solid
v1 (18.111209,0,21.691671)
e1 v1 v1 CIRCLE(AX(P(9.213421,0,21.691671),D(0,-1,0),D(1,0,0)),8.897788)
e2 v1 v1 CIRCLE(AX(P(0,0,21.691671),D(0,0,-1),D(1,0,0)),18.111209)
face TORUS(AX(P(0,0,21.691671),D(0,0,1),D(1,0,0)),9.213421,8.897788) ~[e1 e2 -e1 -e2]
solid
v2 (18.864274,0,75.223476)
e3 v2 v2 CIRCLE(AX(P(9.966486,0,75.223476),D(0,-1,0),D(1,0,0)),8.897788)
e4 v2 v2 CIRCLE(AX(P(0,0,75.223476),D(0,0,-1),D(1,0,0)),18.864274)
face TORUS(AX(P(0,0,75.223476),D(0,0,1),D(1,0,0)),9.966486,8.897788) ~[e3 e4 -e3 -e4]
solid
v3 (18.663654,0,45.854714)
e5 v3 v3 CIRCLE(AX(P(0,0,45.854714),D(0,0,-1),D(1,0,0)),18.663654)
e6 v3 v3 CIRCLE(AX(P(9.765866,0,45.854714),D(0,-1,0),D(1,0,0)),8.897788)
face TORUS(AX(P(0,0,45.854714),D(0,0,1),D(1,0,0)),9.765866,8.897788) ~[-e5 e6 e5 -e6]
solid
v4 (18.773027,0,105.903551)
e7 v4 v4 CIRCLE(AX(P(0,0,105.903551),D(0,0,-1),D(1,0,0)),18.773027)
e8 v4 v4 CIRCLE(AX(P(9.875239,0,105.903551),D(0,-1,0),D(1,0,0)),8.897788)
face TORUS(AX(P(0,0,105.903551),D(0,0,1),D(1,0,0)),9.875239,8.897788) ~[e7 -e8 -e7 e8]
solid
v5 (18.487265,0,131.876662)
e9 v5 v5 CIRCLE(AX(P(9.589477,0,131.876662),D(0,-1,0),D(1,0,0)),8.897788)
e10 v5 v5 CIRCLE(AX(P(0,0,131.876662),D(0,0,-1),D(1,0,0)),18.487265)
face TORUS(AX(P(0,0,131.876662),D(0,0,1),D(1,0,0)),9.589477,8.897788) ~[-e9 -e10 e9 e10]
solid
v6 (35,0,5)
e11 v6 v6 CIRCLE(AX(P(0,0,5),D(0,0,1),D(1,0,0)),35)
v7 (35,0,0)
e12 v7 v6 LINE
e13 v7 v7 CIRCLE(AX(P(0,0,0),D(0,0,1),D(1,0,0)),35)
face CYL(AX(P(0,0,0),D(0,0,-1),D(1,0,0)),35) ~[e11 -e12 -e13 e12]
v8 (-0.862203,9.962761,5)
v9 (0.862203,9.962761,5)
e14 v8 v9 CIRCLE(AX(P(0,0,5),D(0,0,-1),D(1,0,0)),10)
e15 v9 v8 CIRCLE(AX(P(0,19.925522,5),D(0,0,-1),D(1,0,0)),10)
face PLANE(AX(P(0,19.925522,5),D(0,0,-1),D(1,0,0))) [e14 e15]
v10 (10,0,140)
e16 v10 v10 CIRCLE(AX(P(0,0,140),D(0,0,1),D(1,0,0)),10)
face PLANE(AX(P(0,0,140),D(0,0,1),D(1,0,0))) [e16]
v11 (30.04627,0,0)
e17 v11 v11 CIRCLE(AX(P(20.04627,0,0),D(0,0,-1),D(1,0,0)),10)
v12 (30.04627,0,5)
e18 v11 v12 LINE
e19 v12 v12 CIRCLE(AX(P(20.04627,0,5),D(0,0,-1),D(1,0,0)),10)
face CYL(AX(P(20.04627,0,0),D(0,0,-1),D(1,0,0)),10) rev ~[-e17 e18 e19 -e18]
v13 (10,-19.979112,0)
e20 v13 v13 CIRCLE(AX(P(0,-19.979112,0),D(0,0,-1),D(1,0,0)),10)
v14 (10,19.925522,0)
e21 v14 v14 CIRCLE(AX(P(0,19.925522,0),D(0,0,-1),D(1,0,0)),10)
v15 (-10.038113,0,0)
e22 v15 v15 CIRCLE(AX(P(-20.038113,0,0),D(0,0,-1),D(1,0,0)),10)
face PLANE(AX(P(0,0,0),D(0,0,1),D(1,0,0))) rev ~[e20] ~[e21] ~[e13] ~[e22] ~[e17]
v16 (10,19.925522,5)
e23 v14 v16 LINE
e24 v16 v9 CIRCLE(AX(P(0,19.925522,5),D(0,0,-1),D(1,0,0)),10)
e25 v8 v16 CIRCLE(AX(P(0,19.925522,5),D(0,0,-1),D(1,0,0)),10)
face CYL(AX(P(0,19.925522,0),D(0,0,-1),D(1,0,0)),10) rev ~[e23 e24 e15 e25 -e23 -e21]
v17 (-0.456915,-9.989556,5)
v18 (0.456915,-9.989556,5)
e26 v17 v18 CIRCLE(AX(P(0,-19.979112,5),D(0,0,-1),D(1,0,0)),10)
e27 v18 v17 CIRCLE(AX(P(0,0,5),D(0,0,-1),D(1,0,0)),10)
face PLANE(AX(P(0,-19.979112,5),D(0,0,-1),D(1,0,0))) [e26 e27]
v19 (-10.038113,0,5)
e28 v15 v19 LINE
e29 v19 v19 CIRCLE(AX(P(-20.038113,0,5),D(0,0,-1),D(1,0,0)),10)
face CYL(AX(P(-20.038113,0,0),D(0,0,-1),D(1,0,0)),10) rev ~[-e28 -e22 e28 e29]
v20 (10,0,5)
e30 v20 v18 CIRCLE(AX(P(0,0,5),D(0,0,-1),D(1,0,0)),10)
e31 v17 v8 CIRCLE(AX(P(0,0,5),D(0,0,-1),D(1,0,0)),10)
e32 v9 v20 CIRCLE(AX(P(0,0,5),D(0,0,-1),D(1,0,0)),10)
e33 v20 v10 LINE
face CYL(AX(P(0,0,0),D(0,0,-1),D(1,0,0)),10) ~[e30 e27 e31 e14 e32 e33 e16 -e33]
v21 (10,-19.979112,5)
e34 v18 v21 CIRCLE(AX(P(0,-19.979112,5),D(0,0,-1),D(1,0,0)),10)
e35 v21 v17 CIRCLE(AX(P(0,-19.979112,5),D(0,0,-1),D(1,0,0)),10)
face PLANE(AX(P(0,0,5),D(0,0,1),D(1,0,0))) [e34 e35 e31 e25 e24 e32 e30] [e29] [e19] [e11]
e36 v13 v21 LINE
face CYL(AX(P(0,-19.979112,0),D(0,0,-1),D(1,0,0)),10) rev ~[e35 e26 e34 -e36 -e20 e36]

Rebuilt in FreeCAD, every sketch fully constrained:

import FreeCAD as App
import Part
import Sketcher
from FreeCAD import Vector

doc = App.newDocument("Part")
body = doc.addObject("PartDesign::Body", "Body")

# Sketch on XY plane
sketch1 = body.newObject("Sketcher::SketchObject", "Sketch")
sketch1.AttachmentSupport = (doc.getObject("XY_Plane"), [""])
sketch1.MapMode = "FlatFace"
sketch1.addGeometry(Part.Circle(Vector(0, 0, 0), Vector(0, 0, 1), 10), False)
sketch1.addConstraint([
    Sketcher.Constraint("Coincident", 0, 3, -1, 1),
    Sketcher.Constraint("Diameter", 0, 20.0),
])
pad1 = body.newObject("PartDesign::Pad", "Pad")
pad1.Profile = sketch1
pad1.Length = 140

# Sketch on XY plane
sketch2 = body.newObject("Sketcher::SketchObject", "Sketch001")
sketch2.AttachmentSupport = (doc.getObject("XY_Plane"), [""])
sketch2.MapMode = "FlatFace"
sketch2.addGeometry(Part.Circle(Vector(0, 0, 0), Vector(0, 0, 1), 35), False)
sketch2.addConstraint([
    Sketcher.Constraint("Coincident", 0, 3, -1, 1),
    Sketcher.Constraint("Diameter", 0, 70.0),
])
pad2 = body.newObject("PartDesign::Pad", "Pad001")
pad2.Profile = sketch2
pad2.Length = 5

# Sketch on XY plane
sketch3 = body.newObject("Sketcher::SketchObject", "Sketch002")
sketch3.AttachmentSupport = (doc.getObject("XY_Plane"), [""])
sketch3.MapMode = "FlatFace"
sketch3.addGeometry([
    Part.Circle(Vector(0, -20, 0), Vector(0, 0, 1), 10),
    Part.Circle(Vector(20, 0, 0), Vector(0, 0, 1), 10),
    Part.Circle(Vector(0, 20, 0), Vector(0, 0, 1), 10),
    Part.Circle(Vector(-20, 0, 0), Vector(0, 0, 1), 10),
], False)
sketch3.addConstraint([
    Sketcher.Constraint("Equal", 0, 1),
    Sketcher.Constraint("Equal", 1, 2),
    Sketcher.Constraint("Equal", 2, 3),
    Sketcher.Constraint("PointOnObject", 0, 3, -2),
    Sketcher.Constraint("PointOnObject", 1, 3, -1),
    Sketcher.Constraint("PointOnObject", 2, 3, -2),
    Sketcher.Constraint("PointOnObject", 3, 3, -1),
    Sketcher.Constraint("Diameter", 0, 20.0),
    Sketcher.Constraint("DistanceX", -1, 1, 1, 3, 20.04627),
    Sketcher.Constraint("DistanceY", 0, 3, -1, 1, 19.979112),
    Sketcher.Constraint("DistanceY", -1, 1, 2, 3, 19.925522),
    Sketcher.Constraint("DistanceX", 3, 3, -1, 1, 20.038113),
])
pocket1 = body.newObject("PartDesign::Pocket", "Pocket")
pocket1.Profile = sketch3
pocket1.Length = 5
pocket1.Reversed = True
body2 = doc.addObject("PartDesign::Body", "Body001")
body2.AllowCompound = True

# Sketch on XZ plane
sketch4 = body2.newObject("Sketcher::SketchObject", "Sketch003")
sketch4.AttachmentSupport = (doc.getObject("XZ_Plane001"), [""])
sketch4.MapMode = "FlatFace"
sketch4.addGeometry([
    Part.Circle(Vector(10, 106, 0), Vector(0, 0, 1), 9),  # 0
    Part.Circle(Vector(10, 75, 0), Vector(0, 0, 1), 9),  # 1
    Part.Circle(Vector(10, 46, 0), Vector(0, 0, 1), 9),  # 2
    Part.Circle(Vector(9, 22, 0), Vector(0, 0, 1), 9),  # 3
    Part.Circle(Vector(10, 132, 0), Vector(0, 0, 1), 9),  # 4
], False)
sketch4.addConstraint([
    Sketcher.Constraint("Equal", 0, 1),
    Sketcher.Constraint("Equal", 1, 2),
    Sketcher.Constraint("Equal", 2, 3),
    Sketcher.Constraint("Equal", 3, 4),
    Sketcher.Constraint("Diameter", 0, 17.795576),
    Sketcher.Constraint("DistanceX", -1, 1, 0, 3, 9.875239),
    Sketcher.Constraint("DistanceY", -1, 1, 0, 3, 105.903551),
    Sketcher.Constraint("DistanceX", -1, 1, 3, 3, 9.213421),
    Sketcher.Constraint("DistanceY", -1, 1, 3, 3, 21.691671),
    Sketcher.Constraint("DistanceX", 2, 3, 1, 3, 0.20062),
    Sketcher.Constraint("DistanceY", 0, 3, 4, 3, 25.973111),
    Sketcher.Constraint("DistanceX", 4, 3, 1, 3, 0.377009),
    Sketcher.Constraint("DistanceY", 2, 3, 4, 3, 86.021948),
    Sketcher.Constraint("DistanceX", -1, 1, 1, 3, 9.966486),
    Sketcher.Constraint("DistanceY", -1, 1, 1, 3, 75.223476),
])
revolution = body2.newObject("PartDesign::Revolution", "Revolution")
revolution.Profile = sketch4
revolution.ReferenceAxis = (sketch4, ["V_Axis"])
revolution.Angle = 360

doc.recompute()
